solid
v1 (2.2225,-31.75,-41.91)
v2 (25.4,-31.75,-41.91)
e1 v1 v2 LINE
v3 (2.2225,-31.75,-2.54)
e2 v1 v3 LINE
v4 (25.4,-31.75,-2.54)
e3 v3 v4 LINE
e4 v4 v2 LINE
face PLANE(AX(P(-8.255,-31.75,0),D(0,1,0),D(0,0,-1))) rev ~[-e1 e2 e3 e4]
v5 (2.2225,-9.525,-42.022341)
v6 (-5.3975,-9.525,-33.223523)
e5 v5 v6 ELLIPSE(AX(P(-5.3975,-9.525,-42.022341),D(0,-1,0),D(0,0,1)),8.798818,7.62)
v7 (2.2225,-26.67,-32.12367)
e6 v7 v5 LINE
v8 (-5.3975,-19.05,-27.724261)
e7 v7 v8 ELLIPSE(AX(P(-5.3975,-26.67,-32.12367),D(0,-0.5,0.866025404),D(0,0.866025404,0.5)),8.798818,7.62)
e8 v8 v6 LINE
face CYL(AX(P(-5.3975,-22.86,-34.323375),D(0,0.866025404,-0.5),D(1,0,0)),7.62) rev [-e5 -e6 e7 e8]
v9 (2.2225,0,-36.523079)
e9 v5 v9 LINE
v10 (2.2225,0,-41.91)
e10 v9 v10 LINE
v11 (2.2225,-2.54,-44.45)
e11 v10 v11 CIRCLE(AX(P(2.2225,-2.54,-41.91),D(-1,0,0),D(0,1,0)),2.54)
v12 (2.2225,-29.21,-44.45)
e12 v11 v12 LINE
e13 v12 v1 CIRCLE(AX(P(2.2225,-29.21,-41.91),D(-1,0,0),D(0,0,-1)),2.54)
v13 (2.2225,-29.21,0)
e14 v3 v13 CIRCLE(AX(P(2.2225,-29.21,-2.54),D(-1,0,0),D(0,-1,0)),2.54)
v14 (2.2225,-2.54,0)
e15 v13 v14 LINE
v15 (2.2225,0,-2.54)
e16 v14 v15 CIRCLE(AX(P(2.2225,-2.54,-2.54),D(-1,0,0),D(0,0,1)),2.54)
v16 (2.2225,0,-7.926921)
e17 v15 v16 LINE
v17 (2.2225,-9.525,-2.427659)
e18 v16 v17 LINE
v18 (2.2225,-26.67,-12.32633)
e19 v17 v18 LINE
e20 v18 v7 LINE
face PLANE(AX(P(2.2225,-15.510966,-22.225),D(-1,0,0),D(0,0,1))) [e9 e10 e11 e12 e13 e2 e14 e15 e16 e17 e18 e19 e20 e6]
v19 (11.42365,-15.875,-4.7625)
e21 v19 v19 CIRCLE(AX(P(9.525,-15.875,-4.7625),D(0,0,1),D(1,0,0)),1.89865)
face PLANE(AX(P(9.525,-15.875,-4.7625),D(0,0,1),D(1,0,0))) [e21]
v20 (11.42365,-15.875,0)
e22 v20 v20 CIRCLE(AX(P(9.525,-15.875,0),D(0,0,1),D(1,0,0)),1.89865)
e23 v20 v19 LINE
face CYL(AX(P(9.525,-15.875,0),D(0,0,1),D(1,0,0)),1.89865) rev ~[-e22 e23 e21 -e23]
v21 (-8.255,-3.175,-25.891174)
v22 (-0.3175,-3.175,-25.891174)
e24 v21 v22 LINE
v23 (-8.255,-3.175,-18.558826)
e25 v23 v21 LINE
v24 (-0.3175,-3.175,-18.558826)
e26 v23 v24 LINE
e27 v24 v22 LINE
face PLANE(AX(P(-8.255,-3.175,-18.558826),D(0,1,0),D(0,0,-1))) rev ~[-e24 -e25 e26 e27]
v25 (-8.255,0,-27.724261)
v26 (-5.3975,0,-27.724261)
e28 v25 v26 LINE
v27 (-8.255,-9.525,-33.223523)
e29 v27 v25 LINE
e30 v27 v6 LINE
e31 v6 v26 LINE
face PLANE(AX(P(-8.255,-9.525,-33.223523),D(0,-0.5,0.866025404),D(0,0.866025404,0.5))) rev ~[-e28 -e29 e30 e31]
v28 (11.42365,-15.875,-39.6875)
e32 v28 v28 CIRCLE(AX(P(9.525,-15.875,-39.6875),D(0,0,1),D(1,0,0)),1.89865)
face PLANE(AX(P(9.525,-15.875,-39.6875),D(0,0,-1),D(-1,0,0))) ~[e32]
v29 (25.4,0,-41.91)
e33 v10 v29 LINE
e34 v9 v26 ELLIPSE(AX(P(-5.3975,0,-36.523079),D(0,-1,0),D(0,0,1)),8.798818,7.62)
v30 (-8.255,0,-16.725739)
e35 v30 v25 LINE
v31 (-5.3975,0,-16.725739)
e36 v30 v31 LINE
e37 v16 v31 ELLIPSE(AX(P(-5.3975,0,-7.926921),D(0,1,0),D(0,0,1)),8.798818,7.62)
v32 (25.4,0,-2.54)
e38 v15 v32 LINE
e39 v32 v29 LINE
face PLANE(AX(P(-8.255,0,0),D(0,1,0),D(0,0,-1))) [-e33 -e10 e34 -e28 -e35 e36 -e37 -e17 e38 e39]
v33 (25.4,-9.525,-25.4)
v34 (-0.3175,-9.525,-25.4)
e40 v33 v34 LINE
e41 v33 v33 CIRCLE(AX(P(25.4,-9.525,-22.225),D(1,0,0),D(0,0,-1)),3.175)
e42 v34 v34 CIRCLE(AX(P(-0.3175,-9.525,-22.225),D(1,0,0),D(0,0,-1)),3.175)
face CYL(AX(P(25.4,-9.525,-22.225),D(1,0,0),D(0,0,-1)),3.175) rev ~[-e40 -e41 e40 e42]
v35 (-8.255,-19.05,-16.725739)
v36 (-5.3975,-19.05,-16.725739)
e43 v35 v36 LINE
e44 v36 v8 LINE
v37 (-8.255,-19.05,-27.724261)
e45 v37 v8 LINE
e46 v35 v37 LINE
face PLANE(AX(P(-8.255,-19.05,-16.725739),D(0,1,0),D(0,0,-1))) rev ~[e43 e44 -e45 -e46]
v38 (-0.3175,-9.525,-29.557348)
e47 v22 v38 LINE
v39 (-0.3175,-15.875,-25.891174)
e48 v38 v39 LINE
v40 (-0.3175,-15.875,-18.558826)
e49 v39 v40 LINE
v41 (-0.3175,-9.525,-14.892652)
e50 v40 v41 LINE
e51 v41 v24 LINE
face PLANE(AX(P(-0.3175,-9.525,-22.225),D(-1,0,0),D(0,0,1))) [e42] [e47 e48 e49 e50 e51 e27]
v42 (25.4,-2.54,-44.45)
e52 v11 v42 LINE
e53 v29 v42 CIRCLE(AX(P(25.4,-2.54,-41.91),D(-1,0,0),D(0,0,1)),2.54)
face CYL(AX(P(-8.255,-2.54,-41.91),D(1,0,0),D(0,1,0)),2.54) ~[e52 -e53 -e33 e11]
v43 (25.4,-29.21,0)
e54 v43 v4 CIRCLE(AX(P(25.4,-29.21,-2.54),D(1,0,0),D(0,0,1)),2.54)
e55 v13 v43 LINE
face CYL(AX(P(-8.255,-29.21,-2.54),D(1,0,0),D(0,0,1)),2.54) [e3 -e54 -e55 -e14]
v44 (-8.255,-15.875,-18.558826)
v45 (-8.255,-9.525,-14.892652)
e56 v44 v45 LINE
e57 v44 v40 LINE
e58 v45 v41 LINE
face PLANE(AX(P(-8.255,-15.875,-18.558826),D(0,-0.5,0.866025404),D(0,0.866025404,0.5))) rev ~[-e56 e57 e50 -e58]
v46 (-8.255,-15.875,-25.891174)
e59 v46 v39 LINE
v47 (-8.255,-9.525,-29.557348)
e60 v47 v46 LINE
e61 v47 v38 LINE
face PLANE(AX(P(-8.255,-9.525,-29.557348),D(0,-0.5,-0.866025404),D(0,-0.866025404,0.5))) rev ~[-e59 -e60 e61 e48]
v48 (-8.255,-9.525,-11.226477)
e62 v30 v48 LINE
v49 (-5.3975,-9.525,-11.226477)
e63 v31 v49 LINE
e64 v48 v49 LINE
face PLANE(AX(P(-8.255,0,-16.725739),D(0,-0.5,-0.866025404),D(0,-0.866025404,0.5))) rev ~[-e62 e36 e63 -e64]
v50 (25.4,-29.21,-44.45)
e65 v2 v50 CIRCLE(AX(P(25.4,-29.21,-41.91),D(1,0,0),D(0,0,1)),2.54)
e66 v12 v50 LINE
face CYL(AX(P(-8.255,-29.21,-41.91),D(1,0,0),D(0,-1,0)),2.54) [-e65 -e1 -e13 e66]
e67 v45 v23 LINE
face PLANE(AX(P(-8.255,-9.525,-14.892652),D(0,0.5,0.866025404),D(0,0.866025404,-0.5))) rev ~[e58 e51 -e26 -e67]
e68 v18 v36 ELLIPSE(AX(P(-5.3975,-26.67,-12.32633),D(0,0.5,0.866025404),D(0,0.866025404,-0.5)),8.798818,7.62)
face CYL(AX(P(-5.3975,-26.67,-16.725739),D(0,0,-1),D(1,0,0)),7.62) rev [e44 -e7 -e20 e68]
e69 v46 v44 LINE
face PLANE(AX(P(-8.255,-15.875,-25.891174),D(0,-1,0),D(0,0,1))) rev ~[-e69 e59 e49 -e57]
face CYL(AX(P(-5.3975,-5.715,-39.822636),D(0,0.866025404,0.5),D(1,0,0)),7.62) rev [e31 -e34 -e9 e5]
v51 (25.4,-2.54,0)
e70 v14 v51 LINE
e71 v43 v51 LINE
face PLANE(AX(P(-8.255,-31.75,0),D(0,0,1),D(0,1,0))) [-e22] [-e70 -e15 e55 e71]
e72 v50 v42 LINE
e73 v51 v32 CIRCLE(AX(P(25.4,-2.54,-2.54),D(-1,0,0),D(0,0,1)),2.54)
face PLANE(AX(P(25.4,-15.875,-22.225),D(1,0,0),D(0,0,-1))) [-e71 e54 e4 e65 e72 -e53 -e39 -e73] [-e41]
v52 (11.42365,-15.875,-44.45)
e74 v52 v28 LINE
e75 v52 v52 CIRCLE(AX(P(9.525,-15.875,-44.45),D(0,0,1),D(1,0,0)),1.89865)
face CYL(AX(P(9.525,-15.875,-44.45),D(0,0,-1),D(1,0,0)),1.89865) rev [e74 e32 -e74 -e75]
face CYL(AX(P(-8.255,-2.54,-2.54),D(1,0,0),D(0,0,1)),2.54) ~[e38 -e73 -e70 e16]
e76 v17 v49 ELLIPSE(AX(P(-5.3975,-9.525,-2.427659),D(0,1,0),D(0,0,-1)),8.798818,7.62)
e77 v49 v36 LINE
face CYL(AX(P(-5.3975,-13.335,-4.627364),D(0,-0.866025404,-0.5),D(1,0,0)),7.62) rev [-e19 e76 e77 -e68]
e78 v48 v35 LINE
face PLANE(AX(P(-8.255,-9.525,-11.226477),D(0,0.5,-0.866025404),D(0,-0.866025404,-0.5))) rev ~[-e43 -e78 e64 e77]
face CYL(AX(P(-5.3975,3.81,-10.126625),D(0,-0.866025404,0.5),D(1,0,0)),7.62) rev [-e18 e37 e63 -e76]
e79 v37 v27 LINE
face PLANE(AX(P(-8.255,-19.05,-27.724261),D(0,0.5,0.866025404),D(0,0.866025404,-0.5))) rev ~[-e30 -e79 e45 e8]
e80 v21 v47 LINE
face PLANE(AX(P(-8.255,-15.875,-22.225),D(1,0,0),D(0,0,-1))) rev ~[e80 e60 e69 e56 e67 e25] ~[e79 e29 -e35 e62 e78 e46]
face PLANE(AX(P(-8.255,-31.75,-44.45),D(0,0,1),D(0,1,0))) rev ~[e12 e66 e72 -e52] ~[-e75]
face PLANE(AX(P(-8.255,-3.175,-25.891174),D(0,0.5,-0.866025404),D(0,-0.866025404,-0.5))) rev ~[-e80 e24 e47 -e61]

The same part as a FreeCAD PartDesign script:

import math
import FreeCAD as App
import Part
import Sketcher

V = App.Vector
Q = App.Units.Quantity


def edges_at(feature, points):
    """Names of the edges that pass closest to the given points."""
    edges = feature.Shape.Edges
    near = lambda p: min(range(len(edges)), key=lambda i: edges[i].distToShape(Part.Vertex(*p))[0])
    return sorted({f"Edge{near(p) + 1}" for p in points})


def add_polygon(sketch, points):
    """Adds a closed chain of lines whose ends are joined by coincident constraints."""
    first, n = sketch.GeometryCount, len(points)
    for a, b in zip(points, points[1:] + points[:1]):
        sketch.addGeometry(Part.LineSegment(App.Vector(*a, 0), App.Vector(*b, 0)), False)
    for i in range(n):
        sketch.addConstraint(Sketcher.Constraint("Coincident", first + i, 2, first + (i + 1) % n, 1))

doc = App.newDocument("Part")
params = doc.addObject("Spreadsheet::Sheet", "Params")
for row, (alias, value) in enumerate([
    ("sketch1_width", "1.25 in"),
    ("sketch1_height", "1.75 in"),
    ("pad1_length", "1 in"),
    ("pad1_length2", "0.325 in"),
    ("pocket1_length", "0.3125 in"),
    ("sketch3_diameter", "0.25 in"),
    ("pocket3_length", "0.1875 in"),
    ("fillet_radius", "0.1 in"),
    ("sketch5_radius", "0.1 in"),
    ("sketch5_width", "1.05 in"),
    ("sketch5_height", "1.55 in"),
    ("pocket4_length", "0.4125 in"),
    ("fillet2_radius", "0.3 in"),
], start=1):
    params.set(f"A{row}", alias)
    params.set(f"B{row}", "=" + value)
    params.setAlias(f"B{row}", alias)

body = doc.addObject("PartDesign::Body", "Body")

sketch1 = doc.addObject("Sketcher::SketchObject", "Sketch")
body.addObject(sketch1)
sketch1.AttachmentSupport = (doc.YZ_Plane, [""])
sketch1.MapMode = "FlatFace"
add_polygon(sketch1, [(0, 0), (-32, 0), (-32, -44), (0, -44)])
sketch1.addConstraint([
    Sketcher.Constraint("Horizontal", 0),
    Sketcher.Constraint("Vertical", 1),
    Sketcher.Constraint("Horizontal", 2),
    Sketcher.Constraint("Vertical", 3),
    Sketcher.Constraint("Coincident", 3, 2, -1, 1),
    Sketcher.Constraint("DistanceX", 0, 2, 0, 1, Q("1.25 in")),
    Sketcher.Constraint("DistanceY", 1, 2, 1, 1, Q("1.75 in")),
])
sketch1.setExpression("Constraints[9]", "Params.sketch1_width")
sketch1.setExpression("Constraints[10]", "Params.sketch1_height")
pad1 = doc.addObject("PartDesign::Pad", "Pad")
body.addObject(pad1)
pad1.Profile = sketch1
pad1.Type = "TwoLengths"
pad1.setExpression("Length", "Params.pad1_length")
pad1.setExpression("Length2", "Params.pad1_length2")

sketch2 = doc.addObject("Sketcher::SketchObject", "Sketch001")
body.addObject(sketch2)
sketch2.AttachmentSupport = (doc.YZ_Plane, [""])
sketch2.MapMode = "FlatFace"
sketch2.AttachmentOffset = App.Placement(V(0, 0, -0.325 * 25.4), App.Rotation())
add_polygon(sketch2, [(-16, -19), (-10, -15), (-3, -19), (-3, -26), (-10, -30), (-16, -26)])
sketch2.addConstraint([
    Sketcher.Constraint("Vertical", 2),
    Sketcher.Constraint("Vertical", 5),
    Sketcher.Constraint("Parallel", 0, 3),
    Sketcher.Constraint("Parallel", 1, 4),
    Sketcher.Constraint("Horizontal", 2, 2, 4, 2),
    Sketcher.Constraint("Horizontal", 1, 2, 5, 2),
    Sketcher.Constraint("Vertical", 0, 2, 3, 2),
    Sketcher.Constraint("Angle", 0, Q("30 deg")),
    Sketcher.Constraint("DistanceX", 4, 2, 2, 2, Q("0.5 in")),
    Sketcher.Constraint("DistanceX", 0, 2, -1, 1, Q("0.375 in")),
    Sketcher.Constraint("DistanceY", 2, 2, 2, 1, 7.332348),
    Sketcher.Constraint("DistanceY", 0, 2, -1, 1, 14.892652),
])
pocket1 = doc.addObject("PartDesign::Pocket", "Pocket")
body.addObject(pocket1)
pocket1.Profile = sketch2
pocket1.setExpression("Length", "Params.pocket1_length")
pocket1.Reversed = True

sketch3 = doc.addObject("Sketcher::SketchObject", "Sketch002")
body.addObject(sketch3)
sketch3.AttachmentSupport = (doc.YZ_Plane, [""])
sketch3.MapMode = "FlatFace"
sketch3.AttachmentOffset = App.Placement(V(0, 0, 1 * 25.4), App.Rotation())
sketch3.addGeometry(Part.Circle(V(-9.5, -22.2, 0), V(0, 0, 1), 3.2), False)
sketch3.addConstraint([
    Sketcher.Constraint("Diameter", 0, Q("0.25 in")),
    Sketcher.Constraint("DistanceX", 0, 3, -1, 1, Q("0.375 in")),
    Sketcher.Constraint("DistanceY", 0, 3, -1, 1, Q("0.875 in")),
])
sketch3.setExpression("Constraints[0]", "Params.sketch3_diameter")
pocket2 = doc.addObject("PartDesign::Pocket", "Pocket001")
body.addObject(pocket2)
pocket2.Profile = sketch3
pocket2.Type = "ThroughAll"

sketch4 = doc.addObject("Sketcher::SketchObject", "Sketch003")
body.addObject(sketch4)
sketch4.AttachmentSupport = (doc.XY_Plane, [""])
sketch4.MapMode = "FlatFace"
sketch4.addGeometry(Part.Circle(V(9.5, -15.9, 0), V(0, 0, 1), 1.9), False)
sketch4.addConstraint([
    Sketcher.Constraint("Diameter", 0, Q("0.1495 in")),
    Sketcher.Constraint("DistanceX", -1, 1, 0, 3, Q("0.375 in")),
    Sketcher.Constraint("DistanceY", 0, 3, -1, 1, Q("0.625 in")),
])
pocket3 = doc.addObject("PartDesign::Pocket", "Pocket002")
body.addObject(pocket3)
pocket3.Profile = sketch4
pocket3.setExpression("Length", "Params.pocket3_length")
doc.recompute()

datumplane = doc.addObject("PartDesign::Plane", "DatumPlane")
body.addObject(datumplane)
datumplane.AttachmentSupport = (doc.XY_Plane, [""])
datumplane.MapMode = "FlatFace"
datumplane.AttachmentOffset = App.Placement(V(0, 0, -0.875 * 25.4), App.Rotation())
mirrored = doc.addObject("PartDesign::Mirrored", "Mirrored")
body.addObject(mirrored)
mirrored.Originals = [pocket3]
mirrored.MirrorPlane = (datumplane, [""])
body.Tip = mirrored
doc.recompute()

fillet = doc.addObject("PartDesign::Fillet", "Fillet")
body.addObject(fillet)
fillet.Base = (mirrored, edges_at(mirrored, [
    (8.572, 0, 0),
    (8.572, 0, -44.45),
    (8.572, -31.75, -44.45),
    (8.572, -31.75, 0),
]))
fillet.setExpression("Radius", "Params.fillet_radius")

sketch5 = doc.addObject("Sketcher::SketchObject", "Sketch004")
body.addObject(sketch5)
sketch5.AttachmentSupport = (doc.YZ_Plane, [""])
sketch5.MapMode = "FlatFace"
sketch5.AttachmentOffset = App.Placement(V(0, 0, -0.325 * 25.4), App.Rotation())
sketch5.addGeometry([
    Part.LineSegment(V(-2.5, -44.5, 0), V(-29.2, -44.5, 0)),
    Part.ArcOfCircle(Part.Circle(V(-29.2, -41.9, 0), V(0, 0, 1), 2.5), math.radians(-180), math.radians(-90)),
    Part.LineSegment(V(-31.8, -41.9, 0), V(-31.8, -2.5, 0)),
    Part.ArcOfCircle(Part.Circle(V(-29.2, -2.5, 0), V(0, 0, 1), 2.5), math.radians(90), math.radians(180)),
    Part.LineSegment(V(-29.2, 0, 0), V(-2.5, 0, 0)),
    Part.ArcOfCircle(Part.Circle(V(-2.5, -2.5, 0), V(0, 0, 1), 2.5), math.radians(0), math.radians(90)),
    Part.LineSegment(V(0, -2.5, 0), V(0, -16.7, 0)),
    Part.LineSegment(V(0, -16.7, 0), V(-9.5, -11.2, 0)),
    Part.LineSegment(V(-9.5, -11.2, 0), V(-19.1, -16.7, 0)),
    Part.LineSegment(V(-19.1, -16.7, 0), V(-19.1, -27.7, 0)),
    Part.LineSegment(V(-19.1, -27.7, 0), V(-9.5, -33.2, 0)),
    Part.LineSegment(V(-9.5, -33.2, 0), V(0, -27.7, 0)),
    Part.LineSegment(V(0, -27.7, 0), V(0, -41.9, 0)),
    Part.ArcOfCircle(Part.Circle(V(-2.5, -41.9, 0), V(0, 0, 1), 2.5), math.radians(-90), math.radians(0)),
], False)
sketch5.addConstraint([
    Sketcher.Constraint("Tangent", 0, 2, 1, 2),
    Sketcher.Constraint("Tangent", 1, 1, 2, 1),
    Sketcher.Constraint("Tangent", 2, 2, 3, 2),
    Sketcher.Constraint("Tangent", 3, 1, 4, 1),
    Sketcher.Constraint("Tangent", 4, 2, 5, 2),
    Sketcher.Constraint("Tangent", 5, 1, 6, 1),
    Sketcher.Constraint("Coincident", 6, 2, 7, 1),
    Sketcher.Constraint("Coincident", 7, 2, 8, 1),
    Sketcher.Constraint("Coincident", 8, 2, 9, 1),
    Sketcher.Constraint("Coincident", 9, 2, 10, 1),
    Sketcher.Constraint("Coincident", 10, 2, 11, 1),
    Sketcher.Constraint("Coincident", 11, 2, 12, 1),
    Sketcher.Constraint("Tangent", 12, 2, 13, 2),
    Sketcher.Constraint("Tangent", 13, 1, 0, 1),
    Sketcher.Constraint("Horizontal", 0),
    Sketcher.Constraint("Vertical", 2),
    Sketcher.Constraint("Horizontal", 4),
    Sketcher.Constraint("Vertical", 6),
    Sketcher.Constraint("Vertical", 9),
    Sketcher.Constraint("Vertical", 12),
    Sketcher.Constraint("Equal", 1, 3),
    Sketcher.Constraint("Equal", 3, 5),
    Sketcher.Constraint("Equal", 5, 13),
    Sketcher.Constraint("PointOnObject", 3, 1, -1),
    Sketcher.Constraint("PointOnObject", 5, 1, -2),
    Sketcher.Constraint("PointOnObject", 11, 2, -2),
    Sketcher.Constraint("Parallel", 7, 10),
    Sketcher.Constraint("Parallel", 8, 11),
    Sketcher.Constraint("Horizontal", 6, 2, 8, 2),
    Sketcher.Constraint("Horizontal", 9, 2, 11, 2),
    Sketcher.Constraint("Vertical", 7, 2, 10, 2),
    Sketcher.Constraint("Equal", 6, 12),
    Sketcher.Constraint("Radius", 1, Q("0.1 in")),
    Sketcher.Constraint("Angle", 7, Q("150 deg")),
    Sketcher.Constraint("DistanceX", 0, 2, 0, 1, Q("1.05 in")),
    Sketcher.Constraint("DistanceY", 2, 1, 2, 2, Q("1.55 in")),
    Sketcher.Constraint("DistanceX", 3, 3, 8, 2, Q("0.4 in")),
    Sketcher.Constraint("DistanceY", 6, 2, 6, 1, 14.185739),
])
sketch5.setExpression("Constraints[32]", "Params.sketch5_radius")
sketch5.setExpression("Constraints[34]", "Params.sketch5_width")
sketch5.setExpression("Constraints[35]", "Params.sketch5_height")
pocket4 = doc.addObject("PartDesign::Pocket", "Pocket003")
body.addObject(pocket4)
pocket4.Profile = sketch5
pocket4.setExpression("Length", "Params.pocket4_length")
pocket4.Reversed = True
doc.recompute()

fillet2 = doc.addObject("PartDesign::Fillet", "Fillet001")
body.addObject(fillet2)
fillet2.Base = (pocket4, edges_at(pocket4, [
    (2.223, -4.763, -30.474),
    (2.223, -14.287, -30.474),
    (2.223, -19.05, -22.225),
    (2.223, -14.287, -13.976),
    (2.223, -4.763, -13.976),
]))
fillet2.setExpression("Radius", "Params.fillet2_radius")

doc.recompute()
